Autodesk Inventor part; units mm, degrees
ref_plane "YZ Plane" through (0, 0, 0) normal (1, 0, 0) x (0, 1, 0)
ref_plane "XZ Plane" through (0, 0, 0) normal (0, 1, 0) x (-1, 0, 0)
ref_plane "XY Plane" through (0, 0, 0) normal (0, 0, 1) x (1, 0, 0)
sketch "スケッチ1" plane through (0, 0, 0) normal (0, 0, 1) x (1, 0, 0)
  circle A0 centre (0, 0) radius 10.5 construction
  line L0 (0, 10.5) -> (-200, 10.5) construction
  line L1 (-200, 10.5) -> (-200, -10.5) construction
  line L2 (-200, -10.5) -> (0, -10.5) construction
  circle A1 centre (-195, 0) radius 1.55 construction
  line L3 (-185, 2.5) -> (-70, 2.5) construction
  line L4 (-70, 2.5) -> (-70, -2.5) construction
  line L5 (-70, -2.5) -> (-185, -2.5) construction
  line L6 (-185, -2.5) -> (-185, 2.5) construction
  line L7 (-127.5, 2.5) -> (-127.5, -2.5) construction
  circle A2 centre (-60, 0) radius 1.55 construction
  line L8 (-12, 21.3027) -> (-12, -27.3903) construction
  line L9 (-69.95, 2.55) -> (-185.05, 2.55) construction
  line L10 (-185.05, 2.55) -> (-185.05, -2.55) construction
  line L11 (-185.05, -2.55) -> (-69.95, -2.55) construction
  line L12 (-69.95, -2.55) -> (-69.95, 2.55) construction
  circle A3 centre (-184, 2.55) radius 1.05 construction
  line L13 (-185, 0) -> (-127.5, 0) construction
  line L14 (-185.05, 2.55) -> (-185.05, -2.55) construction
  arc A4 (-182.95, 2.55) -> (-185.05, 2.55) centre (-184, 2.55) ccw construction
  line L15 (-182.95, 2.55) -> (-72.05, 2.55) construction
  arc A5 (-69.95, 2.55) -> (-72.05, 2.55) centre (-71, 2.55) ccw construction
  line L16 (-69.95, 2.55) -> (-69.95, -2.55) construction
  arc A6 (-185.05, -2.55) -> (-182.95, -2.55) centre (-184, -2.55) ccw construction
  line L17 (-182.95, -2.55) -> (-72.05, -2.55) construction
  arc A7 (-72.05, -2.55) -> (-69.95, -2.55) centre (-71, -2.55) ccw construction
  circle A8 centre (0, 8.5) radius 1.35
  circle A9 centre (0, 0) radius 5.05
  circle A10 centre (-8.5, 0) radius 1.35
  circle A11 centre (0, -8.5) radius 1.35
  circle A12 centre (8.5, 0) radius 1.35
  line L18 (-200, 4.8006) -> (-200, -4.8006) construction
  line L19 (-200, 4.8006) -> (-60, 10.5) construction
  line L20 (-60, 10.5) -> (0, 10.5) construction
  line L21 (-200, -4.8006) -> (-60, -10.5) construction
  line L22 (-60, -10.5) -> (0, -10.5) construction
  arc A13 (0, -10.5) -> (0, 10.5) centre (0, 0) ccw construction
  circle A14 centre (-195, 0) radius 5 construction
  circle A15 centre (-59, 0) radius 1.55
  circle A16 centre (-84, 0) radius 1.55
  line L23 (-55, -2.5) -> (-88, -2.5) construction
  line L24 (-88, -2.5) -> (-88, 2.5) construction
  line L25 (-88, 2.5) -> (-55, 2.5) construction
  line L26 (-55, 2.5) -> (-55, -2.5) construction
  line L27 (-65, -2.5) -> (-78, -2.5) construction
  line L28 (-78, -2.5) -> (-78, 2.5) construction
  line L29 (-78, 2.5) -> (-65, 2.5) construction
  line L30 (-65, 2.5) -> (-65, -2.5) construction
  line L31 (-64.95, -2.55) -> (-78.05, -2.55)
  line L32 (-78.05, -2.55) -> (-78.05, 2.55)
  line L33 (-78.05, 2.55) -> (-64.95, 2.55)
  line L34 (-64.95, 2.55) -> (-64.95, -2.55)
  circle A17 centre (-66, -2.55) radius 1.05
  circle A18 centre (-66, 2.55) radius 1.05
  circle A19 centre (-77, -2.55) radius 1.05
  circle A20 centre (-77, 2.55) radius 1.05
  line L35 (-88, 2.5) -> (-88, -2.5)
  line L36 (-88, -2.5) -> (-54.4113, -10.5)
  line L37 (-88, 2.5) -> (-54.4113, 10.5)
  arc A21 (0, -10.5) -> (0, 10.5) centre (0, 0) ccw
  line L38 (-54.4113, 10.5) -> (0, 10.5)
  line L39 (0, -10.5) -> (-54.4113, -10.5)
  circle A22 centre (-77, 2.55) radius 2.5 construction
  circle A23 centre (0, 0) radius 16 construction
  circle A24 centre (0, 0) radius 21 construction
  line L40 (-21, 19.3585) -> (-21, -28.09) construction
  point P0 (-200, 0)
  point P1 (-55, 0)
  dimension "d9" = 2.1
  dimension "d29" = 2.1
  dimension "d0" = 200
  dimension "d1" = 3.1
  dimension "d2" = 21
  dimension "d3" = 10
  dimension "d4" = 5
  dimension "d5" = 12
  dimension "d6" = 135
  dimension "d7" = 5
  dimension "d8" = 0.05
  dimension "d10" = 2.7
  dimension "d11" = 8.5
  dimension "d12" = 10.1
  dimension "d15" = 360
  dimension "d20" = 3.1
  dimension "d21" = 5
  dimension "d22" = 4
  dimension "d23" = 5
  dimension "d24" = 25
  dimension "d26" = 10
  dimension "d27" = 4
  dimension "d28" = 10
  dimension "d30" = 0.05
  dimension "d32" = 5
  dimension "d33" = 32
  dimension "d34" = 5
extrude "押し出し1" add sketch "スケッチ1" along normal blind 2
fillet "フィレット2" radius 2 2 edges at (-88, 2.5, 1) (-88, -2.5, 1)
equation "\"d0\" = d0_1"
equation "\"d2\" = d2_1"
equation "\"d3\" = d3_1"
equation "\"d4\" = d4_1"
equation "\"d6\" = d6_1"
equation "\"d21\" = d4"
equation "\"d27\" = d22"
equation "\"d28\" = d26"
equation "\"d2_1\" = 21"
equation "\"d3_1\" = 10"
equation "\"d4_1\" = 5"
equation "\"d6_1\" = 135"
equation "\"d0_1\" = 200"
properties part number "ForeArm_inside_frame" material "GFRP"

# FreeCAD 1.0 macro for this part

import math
import FreeCAD as App
import Part
import Sketcher

V = App.Vector
Q = App.Units.Quantity


def edges_at(feature, points):
    """Names of the edges that pass closest to the given points."""
    edges = feature.Shape.Edges
    near = lambda p: min(range(len(edges)), key=lambda i: edges[i].distToShape(Part.Vertex(*p))[0])
    return sorted({f"Edge{near(p) + 1}" for p in points})

doc = App.newDocument("Part")
body = doc.addObject("PartDesign::Body", "Body")

# Sketch on XY plane
sketch1 = body.newObject("Sketcher::SketchObject", "Sketch")
sketch1.AttachmentSupport = (doc.getObject("XY_Plane"), [""])
sketch1.MapMode = "FlatFace"
sketch1.addGeometry([
    Part.LineSegment(V(-54.4, 10.5, 0), V(-88, 2.5, 0)),  # 0
    Part.LineSegment(V(-88, 2.5, 0), V(-88, -2.5, 0)),  # 1
    Part.LineSegment(V(-88, -2.5, 0), V(-54.4, -10.5, 0)),  # 2
    Part.LineSegment(V(-54.4, -10.5, 0), V(0, -10.5, 0)),  # 3
    Part.ArcOfCircle(Part.Circle(V(0, 0, 0), V(0, 0, 1), 10.5), math.radians(-90), math.radians(90)),  # 4
    Part.LineSegment(V(0, 10.5, 0), V(-54.4, 10.5, 0)),  # 5
    Part.Circle(V(0, -8.5, 0), V(0, 0, 1), 1.4),  # 6
    Part.Circle(V(-84, 0, 0), V(0, 0, 1), 1.6),  # 7
    Part.LineSegment(V(-67, -2.5, 0), V(-76, -2.5, 0)),  # 8
    Part.ArcOfCircle(Part.Circle(V(-77, -2.5, 0), V(0, 0, 1), 1.1), math.radians(180), math.radians(360)),  # 9
    Part.LineSegment(V(-78, -2.5, 0), V(-78, 2.5, 0)),  # 10
    Part.ArcOfCircle(Part.Circle(V(-77, 2.5, 0), V(0, 0, 1), 1.1), math.radians(0), math.radians(180)),  # 11
    Part.LineSegment(V(-76, 2.5, 0), V(-67, 2.5, 0)),  # 12
    Part.ArcOfCircle(Part.Circle(V(-66, 2.5, 0), V(0, 0, 1), 1.1), math.radians(0), math.radians(180)),  # 13
    Part.LineSegment(V(-65, 2.5, 0), V(-65, -2.5, 0)),  # 14
    Part.ArcOfCircle(Part.Circle(V(-66, -2.5, 0), V(0, 0, 1), 1.1), math.radians(180), math.radians(360)),  # 15
    Part.Circle(V(-59, 0, 0), V(0, 0, 1), 1.6),  # 16
    Part.Circle(V(-8.5, 0, 0), V(0, 0, 1), 1.4),  # 17
    Part.Circle(V(0, 0, 0), V(0, 0, 1), 5),  # 18
    Part.Circle(V(8.5, 0, 0), V(0, 0, 1), 1.4),  # 19
    Part.Circle(V(0, 8.5, 0), V(0, 0, 1), 1.4),  # 20
], False)
sketch1.addConstraint([
    Sketcher.Constraint("Coincident", 0, 2, 1, 1),
    Sketcher.Constraint("Coincident", 1, 2, 2, 1),
    Sketcher.Constraint("Coincident", 2, 2, 3, 1),
    Sketcher.Constraint("Tangent", 3, 2, 4, 1),
    Sketcher.Constraint("Tangent", 4, 2, 5, 1),
    Sketcher.Constraint("Coincident", 5, 2, 0, 1),
    Sketcher.Constraint("Coincident", 8, 2, 9, 2),
    Sketcher.Constraint("Tangent", 9, 1, 10, 1),
    Sketcher.Constraint("Tangent", 10, 2, 11, 2),
    Sketcher.Constraint("Coincident", 11, 1, 12, 1),
    Sketcher.Constraint("Coincident", 12, 2, 13, 2),
    Sketcher.Constraint("Tangent", 13, 1, 14, 1),
    Sketcher.Constraint("Tangent", 14, 2, 15, 2),
    Sketcher.Constraint("Coincident", 15, 1, 8, 1),
    Sketcher.Constraint("Vertical", 1),
    Sketcher.Constraint("Horizontal", 3),
    Sketcher.Constraint("Horizontal", 5),
    Sketcher.Constraint("Horizontal", 8),
    Sketcher.Constraint("Vertical", 10),
    Sketcher.Constraint("Horizontal", 12),
    Sketcher.Constraint("Vertical", 14),
    Sketcher.Constraint("Coincident", 4, 3, -1, 1),
    Sketcher.Constraint("Coincident", 18, 3, -1, 1),
    Sketcher.Constraint("Equal", 9, 11),
    Sketcher.Constraint("Equal", 11, 13),
    Sketcher.Constraint("Equal", 13, 15),
    Sketcher.Constraint("Equal", 7, 16),
    Sketcher.Constraint("Equal", 6, 17),
    Sketcher.Constraint("Equal", 17, 19),
    Sketcher.Constraint("Equal", 19, 20),
    Sketcher.Constraint("Symmetric", 17, 3, 19, 3, -1, 1),
    Sketcher.Constraint("Symmetric", 6, 3, 20, 3, -1, 1),
    Sketcher.Constraint("PointOnObject", 6, 3, -2),
    Sketcher.Constraint("PointOnObject", 7, 3, -1),
    Sketcher.Constraint("PointOnObject", 16, 3, -1),
    Sketcher.Constraint("PointOnObject", 17, 3, -1),
    Sketcher.Constraint("Horizontal", 11, 3, 13, 3),
    Sketcher.Constraint("Horizontal", 9, 3, 15, 3),
    Sketcher.Constraint("Horizontal", 15, 3, 8, 2),
    Sketcher.Constraint("Horizontal", 10, 2, 11, 1),
    Sketcher.Constraint("Vertical", 2, 2, 5, 2),
    Sketcher.Constraint("Equal", 0, 2),
    Sketcher.Constraint("Diameter", 6, Q("2.7 mm")),
    Sketcher.Constraint("Diameter", 7, Q("3.1 mm")),
    Sketcher.Constraint("Diameter", 18, Q("10.1 mm")),
    Sketcher.Constraint("Radius", 4, Q("10.5 mm")),
    Sketcher.Constraint("DistanceY", 1, 2, 1, 1, Q("5 mm")),
    Sketcher.Constraint("Radius", 9, Q("1.05 mm")),
    Sketcher.Constraint("DistanceX", 7, 3, 16, 3, Q("25 mm")),
    Sketcher.Constraint("DistanceX", 0, 2, 7, 3, Q("4 mm")),
    Sketcher.Constraint("DistanceY", 6, 3, -1, 1, Q("8.5 mm")),
    Sketcher.Constraint("DistanceX", 17, 3, -1, 1, Q("8.5 mm")),
    Sketcher.Constraint("DistanceY", 0, 2, 11, 3, Q("0.05 mm")),
    Sketcher.Constraint("DistanceY", 9, 3, 1, 2, Q("0.05 mm")),
    Sketcher.Constraint("DistanceX", 8, 2, 8, 1, Q("8.9 mm")),
    Sketcher.Constraint("DistanceX", 7, 3, -1, 1, Q("84 mm")),
    Sketcher.Constraint("DistanceX", 9, 3, -1, 1, Q("77 mm")),
    Sketcher.Constraint("DistanceX", 3, 1, 3, 2, Q("54.4113 mm")),
])
pad1 = body.newObject("PartDesign::Pad", "Pad")
pad1.Profile = sketch1
pad1.Length = 2
doc.recompute()

fillet = body.newObject("PartDesign::Fillet", "Fillet")
fillet.Base = (pad1, edges_at(pad1, [(-88, 2.5, 1), (-88, -2.5, 1)]))
fillet.Radius = 2

doc.recompute()
